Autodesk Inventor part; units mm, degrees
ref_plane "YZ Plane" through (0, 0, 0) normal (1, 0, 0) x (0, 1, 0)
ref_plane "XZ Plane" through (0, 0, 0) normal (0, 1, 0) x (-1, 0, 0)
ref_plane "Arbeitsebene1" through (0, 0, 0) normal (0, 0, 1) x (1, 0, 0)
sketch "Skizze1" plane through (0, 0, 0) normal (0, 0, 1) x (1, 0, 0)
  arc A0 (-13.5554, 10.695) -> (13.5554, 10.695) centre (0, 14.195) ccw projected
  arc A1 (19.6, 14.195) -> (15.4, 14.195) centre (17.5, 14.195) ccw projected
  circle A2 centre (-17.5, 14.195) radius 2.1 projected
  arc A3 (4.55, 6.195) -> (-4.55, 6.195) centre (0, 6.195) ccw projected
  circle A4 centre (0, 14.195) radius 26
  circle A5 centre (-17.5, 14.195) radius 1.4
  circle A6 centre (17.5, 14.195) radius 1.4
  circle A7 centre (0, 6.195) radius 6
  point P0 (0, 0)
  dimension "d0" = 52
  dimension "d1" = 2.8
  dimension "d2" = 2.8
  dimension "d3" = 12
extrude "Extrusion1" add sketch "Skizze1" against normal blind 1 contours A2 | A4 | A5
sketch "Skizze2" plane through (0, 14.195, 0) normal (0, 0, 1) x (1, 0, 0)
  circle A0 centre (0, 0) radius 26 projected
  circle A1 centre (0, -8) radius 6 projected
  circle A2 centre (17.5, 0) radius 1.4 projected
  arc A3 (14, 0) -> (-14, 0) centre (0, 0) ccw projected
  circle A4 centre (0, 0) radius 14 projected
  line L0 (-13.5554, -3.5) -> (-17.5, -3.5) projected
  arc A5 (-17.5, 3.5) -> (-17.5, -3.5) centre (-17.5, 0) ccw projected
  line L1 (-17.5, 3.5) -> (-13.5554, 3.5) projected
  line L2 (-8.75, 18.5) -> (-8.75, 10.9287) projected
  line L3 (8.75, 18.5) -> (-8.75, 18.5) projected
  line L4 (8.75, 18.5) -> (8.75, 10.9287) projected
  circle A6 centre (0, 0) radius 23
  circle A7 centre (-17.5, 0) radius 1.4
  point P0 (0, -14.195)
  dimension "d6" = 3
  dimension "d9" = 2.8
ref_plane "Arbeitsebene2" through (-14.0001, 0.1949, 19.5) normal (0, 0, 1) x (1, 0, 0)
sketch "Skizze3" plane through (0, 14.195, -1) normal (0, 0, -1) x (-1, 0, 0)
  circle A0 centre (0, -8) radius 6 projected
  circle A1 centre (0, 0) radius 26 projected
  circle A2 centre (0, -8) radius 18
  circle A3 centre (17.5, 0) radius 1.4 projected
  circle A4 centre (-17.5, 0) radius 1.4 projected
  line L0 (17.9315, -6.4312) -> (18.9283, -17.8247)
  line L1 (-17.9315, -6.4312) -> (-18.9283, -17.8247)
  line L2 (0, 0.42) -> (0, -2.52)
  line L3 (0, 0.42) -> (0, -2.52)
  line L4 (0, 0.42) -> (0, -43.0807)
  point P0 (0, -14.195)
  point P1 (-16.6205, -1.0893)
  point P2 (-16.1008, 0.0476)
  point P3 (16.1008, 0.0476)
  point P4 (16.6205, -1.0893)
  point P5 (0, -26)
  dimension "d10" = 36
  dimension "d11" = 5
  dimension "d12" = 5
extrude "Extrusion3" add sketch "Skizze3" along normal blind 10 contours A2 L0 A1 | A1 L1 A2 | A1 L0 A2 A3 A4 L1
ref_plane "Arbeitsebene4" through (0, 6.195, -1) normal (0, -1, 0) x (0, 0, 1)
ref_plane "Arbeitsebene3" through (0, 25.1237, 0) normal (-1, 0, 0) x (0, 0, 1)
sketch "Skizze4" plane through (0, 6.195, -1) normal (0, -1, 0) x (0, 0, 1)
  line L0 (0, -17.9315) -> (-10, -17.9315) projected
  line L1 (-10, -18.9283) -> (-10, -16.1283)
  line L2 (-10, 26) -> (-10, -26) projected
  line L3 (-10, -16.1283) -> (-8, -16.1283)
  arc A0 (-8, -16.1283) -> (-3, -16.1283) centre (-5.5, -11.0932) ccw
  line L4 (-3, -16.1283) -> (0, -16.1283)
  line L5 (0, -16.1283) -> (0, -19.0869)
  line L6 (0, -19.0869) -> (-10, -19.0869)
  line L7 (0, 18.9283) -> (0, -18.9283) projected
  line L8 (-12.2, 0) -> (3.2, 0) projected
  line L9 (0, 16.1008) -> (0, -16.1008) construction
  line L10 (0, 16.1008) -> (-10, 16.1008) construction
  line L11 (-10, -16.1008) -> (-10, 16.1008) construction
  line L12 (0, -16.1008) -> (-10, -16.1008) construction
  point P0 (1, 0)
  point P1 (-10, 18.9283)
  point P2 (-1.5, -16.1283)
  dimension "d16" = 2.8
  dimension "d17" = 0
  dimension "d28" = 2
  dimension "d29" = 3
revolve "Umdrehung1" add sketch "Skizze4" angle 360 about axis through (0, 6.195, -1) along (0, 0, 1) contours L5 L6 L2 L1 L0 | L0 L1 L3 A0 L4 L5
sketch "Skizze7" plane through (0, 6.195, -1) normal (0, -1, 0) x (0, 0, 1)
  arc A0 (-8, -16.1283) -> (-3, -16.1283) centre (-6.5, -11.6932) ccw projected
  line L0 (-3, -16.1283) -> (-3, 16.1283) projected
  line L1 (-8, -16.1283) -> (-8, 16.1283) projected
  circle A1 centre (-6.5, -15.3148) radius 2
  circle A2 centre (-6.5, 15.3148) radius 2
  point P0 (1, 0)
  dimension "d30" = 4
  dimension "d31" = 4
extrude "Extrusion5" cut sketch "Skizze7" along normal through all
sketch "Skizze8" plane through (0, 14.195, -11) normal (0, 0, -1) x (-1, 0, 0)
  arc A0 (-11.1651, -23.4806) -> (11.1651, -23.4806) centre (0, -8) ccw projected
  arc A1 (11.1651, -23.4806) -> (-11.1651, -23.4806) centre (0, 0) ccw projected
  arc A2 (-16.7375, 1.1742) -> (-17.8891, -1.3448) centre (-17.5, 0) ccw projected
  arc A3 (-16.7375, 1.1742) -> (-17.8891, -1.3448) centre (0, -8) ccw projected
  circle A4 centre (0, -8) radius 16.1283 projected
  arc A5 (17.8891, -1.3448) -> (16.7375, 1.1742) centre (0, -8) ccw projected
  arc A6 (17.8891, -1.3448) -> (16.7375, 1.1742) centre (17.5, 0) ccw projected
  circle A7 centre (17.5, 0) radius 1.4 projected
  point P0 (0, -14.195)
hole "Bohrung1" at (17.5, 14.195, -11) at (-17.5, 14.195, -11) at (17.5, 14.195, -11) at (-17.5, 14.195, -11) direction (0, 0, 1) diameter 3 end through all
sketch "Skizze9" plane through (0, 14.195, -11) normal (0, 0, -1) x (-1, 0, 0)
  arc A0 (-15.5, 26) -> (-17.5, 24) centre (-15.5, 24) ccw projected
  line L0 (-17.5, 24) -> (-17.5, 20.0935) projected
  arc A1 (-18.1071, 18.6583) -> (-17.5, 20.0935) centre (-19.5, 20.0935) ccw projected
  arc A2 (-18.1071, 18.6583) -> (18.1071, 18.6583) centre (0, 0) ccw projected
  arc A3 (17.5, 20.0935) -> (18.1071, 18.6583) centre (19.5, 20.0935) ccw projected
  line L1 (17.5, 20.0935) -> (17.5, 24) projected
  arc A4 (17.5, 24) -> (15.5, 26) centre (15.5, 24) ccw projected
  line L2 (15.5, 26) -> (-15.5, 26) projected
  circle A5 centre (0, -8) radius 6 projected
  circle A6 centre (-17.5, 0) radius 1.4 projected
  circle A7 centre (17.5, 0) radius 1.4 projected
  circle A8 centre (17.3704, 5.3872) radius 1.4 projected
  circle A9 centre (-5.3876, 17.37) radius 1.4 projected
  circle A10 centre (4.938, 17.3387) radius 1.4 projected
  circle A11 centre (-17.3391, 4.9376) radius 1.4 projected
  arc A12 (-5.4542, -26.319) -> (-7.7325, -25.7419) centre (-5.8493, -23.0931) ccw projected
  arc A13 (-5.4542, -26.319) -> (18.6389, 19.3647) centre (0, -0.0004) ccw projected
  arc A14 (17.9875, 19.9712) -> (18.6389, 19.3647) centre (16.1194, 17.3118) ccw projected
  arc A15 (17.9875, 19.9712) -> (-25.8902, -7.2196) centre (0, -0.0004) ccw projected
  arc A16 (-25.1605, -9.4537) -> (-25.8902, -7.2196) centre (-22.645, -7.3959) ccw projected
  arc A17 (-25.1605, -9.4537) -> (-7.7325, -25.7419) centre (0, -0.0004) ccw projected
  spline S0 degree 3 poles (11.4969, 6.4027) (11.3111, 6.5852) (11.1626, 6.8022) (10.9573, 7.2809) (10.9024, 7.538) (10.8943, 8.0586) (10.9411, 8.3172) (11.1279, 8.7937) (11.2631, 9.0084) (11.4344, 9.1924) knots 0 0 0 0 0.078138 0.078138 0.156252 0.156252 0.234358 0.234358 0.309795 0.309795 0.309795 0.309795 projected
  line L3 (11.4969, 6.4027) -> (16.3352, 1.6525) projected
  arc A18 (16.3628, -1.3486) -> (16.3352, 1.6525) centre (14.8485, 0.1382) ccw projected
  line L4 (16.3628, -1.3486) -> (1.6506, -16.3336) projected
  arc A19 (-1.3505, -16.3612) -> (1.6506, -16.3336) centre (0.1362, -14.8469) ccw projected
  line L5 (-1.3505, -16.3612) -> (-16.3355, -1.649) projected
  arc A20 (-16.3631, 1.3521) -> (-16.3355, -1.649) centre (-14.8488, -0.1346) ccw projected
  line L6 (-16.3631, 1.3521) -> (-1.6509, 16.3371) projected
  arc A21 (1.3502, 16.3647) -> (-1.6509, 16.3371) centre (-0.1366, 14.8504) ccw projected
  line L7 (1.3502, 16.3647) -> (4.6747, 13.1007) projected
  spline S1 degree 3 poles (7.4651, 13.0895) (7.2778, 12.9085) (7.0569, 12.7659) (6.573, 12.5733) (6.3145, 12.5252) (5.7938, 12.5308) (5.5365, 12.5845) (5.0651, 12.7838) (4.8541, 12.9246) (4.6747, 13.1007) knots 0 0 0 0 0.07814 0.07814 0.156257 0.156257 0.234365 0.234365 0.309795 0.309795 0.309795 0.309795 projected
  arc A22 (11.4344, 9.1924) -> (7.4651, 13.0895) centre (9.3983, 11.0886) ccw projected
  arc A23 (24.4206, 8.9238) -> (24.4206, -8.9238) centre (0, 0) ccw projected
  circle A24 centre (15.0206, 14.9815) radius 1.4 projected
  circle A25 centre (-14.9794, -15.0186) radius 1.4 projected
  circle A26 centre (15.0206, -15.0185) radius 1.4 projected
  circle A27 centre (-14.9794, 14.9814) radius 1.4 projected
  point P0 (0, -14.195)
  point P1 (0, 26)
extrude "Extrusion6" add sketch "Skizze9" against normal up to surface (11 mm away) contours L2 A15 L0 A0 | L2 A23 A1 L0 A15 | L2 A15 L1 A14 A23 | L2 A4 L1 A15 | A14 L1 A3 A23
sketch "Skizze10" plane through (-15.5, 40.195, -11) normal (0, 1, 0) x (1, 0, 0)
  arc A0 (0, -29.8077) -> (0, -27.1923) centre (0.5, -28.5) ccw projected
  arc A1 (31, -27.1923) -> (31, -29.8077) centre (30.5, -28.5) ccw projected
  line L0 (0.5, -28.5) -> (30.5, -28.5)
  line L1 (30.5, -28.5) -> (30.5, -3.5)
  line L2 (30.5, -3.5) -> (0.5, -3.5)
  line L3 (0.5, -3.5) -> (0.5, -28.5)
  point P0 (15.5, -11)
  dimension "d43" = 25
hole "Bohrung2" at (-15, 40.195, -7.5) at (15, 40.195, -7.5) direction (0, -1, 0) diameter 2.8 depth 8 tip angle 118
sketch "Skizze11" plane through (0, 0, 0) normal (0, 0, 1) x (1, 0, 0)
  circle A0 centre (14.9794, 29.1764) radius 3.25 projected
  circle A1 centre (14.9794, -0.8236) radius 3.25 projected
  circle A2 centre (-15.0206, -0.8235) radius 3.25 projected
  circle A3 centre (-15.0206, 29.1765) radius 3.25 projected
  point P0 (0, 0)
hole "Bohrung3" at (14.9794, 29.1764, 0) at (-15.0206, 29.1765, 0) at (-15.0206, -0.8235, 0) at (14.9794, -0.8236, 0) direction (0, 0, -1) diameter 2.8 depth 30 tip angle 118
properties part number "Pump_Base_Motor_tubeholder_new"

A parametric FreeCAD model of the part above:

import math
import FreeCAD as App
import Part
import Sketcher
from FreeCAD import Vector
Q = App.Units.Quantity

doc = App.newDocument("Part")
params = doc.addObject("Spreadsheet::Sheet", "Params")
for row, (alias, value) in enumerate([
    ("sketch1_diameter", "52 mm"),
    ("sketch1_diameter2", "12 mm"),
    ("sketch1_diameter3", "2.8 mm"),
    ("pad1_length", "1 mm"),
    ("sketch2_radius", "18 mm"),
    ("sketch2_diameter", "52 mm"),
    ("sketch2_radius2", "1.4 mm"),
    ("pad2_length", "10 mm"),
    ("sketch3_height", "3 mm"),
    ("sketch3_height2", "2 mm"),
    ("sketch3_height3", "10 mm"),
    ("revolution_angle", "360 deg"),
    ("sketch4_diameter", "4 mm"),
    ("sketch5_diameter", "3 mm"),
    ("hole_diameter", "3 mm"),
    ("sketch6_radius", "2 mm"),
    ("sketch6_radius2", "26 mm"),
    ("sketch6_width", "15.5 mm"),
    ("pad3_length", "11 mm"),
    ("sketch7_diameter", "2.8 mm"),
    ("hole2_diameter", "2.8 mm"),
    ("hole2_depth", "8 mm"),
    ("sketch8_diameter", "2.8 mm"),
    ("hole3_diameter", "2.8 mm"),
    ("hole3_depth", "30 mm"),
], start=1):
    params.set(f"A{row}", alias)
    params.set(f"B{row}", "=" + value)
    params.setAlias(f"B{row}", alias)

body = doc.addObject("PartDesign::Body", "Body")

# Sketch on XY plane
sketch1 = body.newObject("Sketcher::SketchObject", "Sketch")
sketch1.AttachmentSupport = (doc.getObject("XY_Plane"), [""])
sketch1.MapMode = "FlatFace"
sketch1.addGeometry(Part.Circle(Vector(0, 14.2, 0), Vector(0, 0, 1), 26), False)
sketch1.addGeometry(Part.Circle(Vector(0, 6.2, 0), Vector(0, 0, 1), 6), False)
sketch1.addGeometry(Part.Circle(Vector(17.5, 14.2, 0), Vector(0, 0, 1), 1.4), False)
sketch1.addConstraint(Sketcher.Constraint("PointOnObject", 0, 3, -2))
sketch1.addConstraint(Sketcher.Constraint("PointOnObject", 1, 3, -2))
sketch1.addConstraint(Sketcher.Constraint("Horizontal", 0, 3, 2, 3))
sketch1.addConstraint(Sketcher.Constraint("Diameter", 0, Q("52 mm")))
sketch1.addConstraint(Sketcher.Constraint("Diameter", 1, Q("12 mm")))
sketch1.addConstraint(Sketcher.Constraint("Diameter", 2, Q("2.8 mm")))
sketch1.addConstraint(Sketcher.Constraint("DistanceY", 1, 3, 0, 3, Q("8 mm")))
sketch1.addConstraint(Sketcher.Constraint("DistanceX", -1, 1, 2, 3, Q("17.5 mm")))
sketch1.addConstraint(Sketcher.Constraint("DistanceY", -1, 1, 0, 3, Q("14.195 mm")))
sketch1.setExpression("Constraints[3]", "Params.sketch1_diameter")
sketch1.setExpression("Constraints[4]", "Params.sketch1_diameter2")
sketch1.setExpression("Constraints[5]", "Params.sketch1_diameter3")
pad1 = body.newObject("PartDesign::Pad", "Pad")
pad1.Profile = sketch1
pad1.setExpression("Length", "Params.pad1_length")
pad1.Reversed = True

# Sketch on XY plane
sketch2 = body.newObject("Sketcher::SketchObject", "Sketch001")
sketch2.AttachmentSupport = (doc.getObject("XY_Plane"), [""])
sketch2.MapMode = "FlatFace"
sketch2.AttachmentOffset = App.Placement(Vector(0, 0, -1), App.Rotation())
sketch2.addGeometry(Part.Circle(Vector(0, 14.2, 0), Vector(0, 0, 1), 26), False)
sketch2.addGeometry(Part.ArcOfCircle(Part.Circle(Vector(0, 6.2, 0), Vector(0, 0, 1), 18), math.radians(-90), math.radians(23)), False)
sketch2.addGeometry(Part.ArcOfCircle(Part.Circle(Vector(17.5, 14.2, 0), Vector(0, 0, 1), 1.4), math.radians(-129), math.radians(178)), False)
sketch2.addGeometry(Part.ArcOfCircle(Part.Circle(Vector(0, 6.2, 0), Vector(0, 0, 1), 18), math.radians(27), math.radians(153)), False)
sketch2.addGeometry(Part.ArcOfCircle(Part.Circle(Vector(-17.5, 14.2, 0), Vector(0, 0, 1), 1.4), math.radians(2), math.radians(309)), False)
sketch2.addGeometry(Part.ArcOfCircle(Part.Circle(Vector(0, 6.2, 0), Vector(0, 0, 1), 18), math.radians(157), math.radians(270)), False)
sketch2.addConstraint(Sketcher.Constraint("Coincident", 1, 2, 2, 1))
sketch2.addConstraint(Sketcher.Constraint("Coincident", 2, 2, 3, 1))
sketch2.addConstraint(Sketcher.Constraint("Coincident", 3, 2, 4, 1))
sketch2.addConstraint(Sketcher.Constraint("Coincident", 4, 2, 5, 1))
sketch2.addConstraint(Sketcher.Constraint("Tangent", 5, 2, 1, 1))
sketch2.addConstraint(Sketcher.Constraint("Coincident", 3, 3, 1, 3))
sketch2.addConstraint(Sketcher.Constraint("Equal", 1, 3))
sketch2.addConstraint(Sketcher.Constraint("Equal", 2, 4))
sketch2.addConstraint(Sketcher.Constraint("Equal", 3, 5))
sketch2.addConstraint(Sketcher.Constraint("Symmetric", 2, 3, 4, 3, -2))
sketch2.addConstraint(Sketcher.Constraint("PointOnObject", 0, 3, -2))
sketch2.addConstraint(Sketcher.Constraint("PointOnObject", 1, 3, -2))
sketch2.addConstraint(Sketcher.Constraint("PointOnObject", 5, 2, -2))
sketch2.addConstraint(Sketcher.Constraint("Horizontal", 0, 3, 2, 3))
sketch2.addConstraint(Sketcher.Constraint("Radius", 1, Q("18 mm")))
sketch2.addConstraint(Sketcher.Constraint("Diameter", 0, Q("52 mm")))
sketch2.addConstraint(Sketcher.Constraint("Radius", 2, Q("1.4 mm")))
sketch2.addConstraint(Sketcher.Constraint("DistanceY", 1, 3, 0, 3, Q("8 mm")))
sketch2.addConstraint(Sketcher.Constraint("DistanceX", 4, 3, 2, 3, Q("35 mm")))
sketch2.addConstraint(Sketcher.Constraint("DistanceY", -1, 1, 0, 3, Q("14.195 mm")))
sketch2.setExpression("Constraints[14]", "Params.sketch2_radius")
sketch2.setExpression("Constraints[15]", "Params.sketch2_diameter")
sketch2.setExpression("Constraints[16]", "Params.sketch2_radius2")
pad2 = body.newObject("PartDesign::Pad", "Pad001")
pad2.Profile = sketch2
pad2.setExpression("Length", "Params.pad2_length")
pad2.Reversed = True

# Sketch on XZ plane
sketch3 = body.newObject("Sketcher::SketchObject", "Sketch002")
sketch3.AttachmentSupport = (doc.getObject("XZ_Plane"), [""])
sketch3.MapMode = "FlatFace"
sketch3.AttachmentOffset = App.Placement(Vector(0, 0, -6.195), App.Rotation())
sketch3.addGeometry(Part.LineSegment(Vector(16.1, -1, 0), Vector(16.1, -4, 0)), False)
sketch3.addGeometry(Part.ArcOfCircle(Part.Circle(Vector(11.1, -6.5, 0), Vector(0, 0, 1), 5.6), math.radians(-26), math.radians(26)), False)
sketch3.addGeometry(Part.LineSegment(Vector(16.1, -9, 0), Vector(16.1, -11, 0)), False)
sketch3.addGeometry(Part.LineSegment(Vector(16.1, -11, 0), Vector(19.1, -11, 0)), False)
sketch3.addGeometry(Part.LineSegment(Vector(19.1, -11, 0), Vector(19.1, -1, 0)), False)
sketch3.addGeometry(Part.LineSegment(Vector(19.1, -1, 0), Vector(16.1, -1, 0)), False)
sketch3.addConstraint(Sketcher.Constraint("Coincident", 0, 2, 1, 2))
sketch3.addConstraint(Sketcher.Constraint("Coincident", 1, 1, 2, 1))
sketch3.addConstraint(Sketcher.Constraint("Coincident", 2, 2, 3, 1))
sketch3.addConstraint(Sketcher.Constraint("Coincident", 3, 2, 4, 1))
sketch3.addConstraint(Sketcher.Constraint("Coincident", 4, 2, 5, 1))
sketch3.addConstraint(Sketcher.Constraint("Coincident", 5, 2, 0, 1))
sketch3.addConstraint(Sketcher.Constraint("Vertical", 0))
sketch3.addConstraint(Sketcher.Constraint("Vertical", 2))
sketch3.addConstraint(Sketcher.Constraint("Horizontal", 3))
sketch3.addConstraint(Sketcher.Constraint("Vertical", 4))
sketch3.addConstraint(Sketcher.Constraint("Horizontal", 5))
sketch3.addConstraint(Sketcher.Constraint("Vertical", 0, 2, 1, 1))
sketch3.addConstraint(Sketcher.Constraint("DistanceY", 0, 2, 0, 1, Q("3 mm")))
sketch3.addConstraint(Sketcher.Constraint("DistanceY", 2, 2, 2, 1, Q("2 mm")))
sketch3.addConstraint(Sketcher.Constraint("DistanceY", 4, 1, 4, 2, Q("10 mm")))
sketch3.addConstraint(Sketcher.Constraint("DistanceY", 0, 2, -1, 1, Q("4 mm")))
sketch3.addConstraint(Sketcher.Constraint("Radius", 1, Q("5.6216 mm")))
sketch3.addConstraint(Sketcher.Constraint("DistanceX", 3, 1, 3, 2, Q("2.9586 mm")))
sketch3.addConstraint(Sketcher.Constraint("DistanceX", -1, 1, 3, 2, Q("19.087 mm")))
sketch3.setExpression("Constraints[12]", "Params.sketch3_height")
sketch3.setExpression("Constraints[13]", "Params.sketch3_height2")
sketch3.setExpression("Constraints[14]", "Params.sketch3_height3")
revolution = body.newObject("PartDesign::Revolution", "Revolution")
revolution.Profile = sketch3
revolution.ReferenceAxis = (sketch3, ["V_Axis"])
revolution.setExpression("Angle", "Params.revolution_angle")

# Sketch on XZ plane
sketch4 = body.newObject("Sketcher::SketchObject", "Sketch003")
sketch4.AttachmentSupport = (doc.getObject("XZ_Plane"), [""])
sketch4.MapMode = "FlatFace"
sketch4.AttachmentOffset = App.Placement(Vector(0, 0, -6.195), App.Rotation())
sketch4.addGeometry(Part.Circle(Vector(15.3, -7.5, 0), Vector(0, 0, 1), 2), False)
sketch4.addGeometry(Part.Circle(Vector(-15.3, -7.5, 0), Vector(0, 0, 1), 2), False)
sketch4.addConstraint(Sketcher.Constraint("Equal", 0, 1))
sketch4.addConstraint(Sketcher.Constraint("Symmetric", 0, 3, 1, 3, -2))
sketch4.addConstraint(Sketcher.Constraint("Diameter", 0, Q("4 mm")))
sketch4.addConstraint(Sketcher.Constraint("DistanceY", 0, 3, -1, 1, Q("7.5 mm")))
sketch4.addConstraint(Sketcher.Constraint("DistanceX", -1, 1, 0, 3, Q("15.3148 mm")))
sketch4.setExpression("Constraints[2]", "Params.sketch4_diameter")
pocket1 = body.newObject("PartDesign::Pocket", "Pocket")
pocket1.Profile = sketch4
pocket1.Type = "ThroughAll"
pocket1.Reversed = True

# Sketch on XY plane
sketch5 = body.newObject("Sketcher::SketchObject", "Sketch004")
sketch5.AttachmentSupport = (doc.getObject("XY_Plane"), [""])
sketch5.MapMode = "FlatFace"
sketch5.AttachmentOffset = App.Placement(Vector(0, 0, -11), App.Rotation())
sketch5.addGeometry(Part.Circle(Vector(17.5, 14.2, 0), Vector(0, 0, 1), 1.5), False)
sketch5.addGeometry(Part.Circle(Vector(-17.5, 14.2, 0), Vector(0, 0, 1), 1.5), False)
sketch5.addGeometry(Part.Circle(Vector(17.5, 14.2, 0), Vector(0, 0, 1), 1.5), False)
sketch5.addGeometry(Part.Circle(Vector(-17.5, 14.2, 0), Vector(0, 0, 1), 1.5), False)
sketch5.addConstraint(Sketcher.Constraint("Coincident", 2, 3, 0, 3))
sketch5.addConstraint(Sketcher.Constraint("Coincident", 3, 3, 1, 3))
sketch5.addConstraint(Sketcher.Constraint("Equal", 0, 1))
sketch5.addConstraint(Sketcher.Constraint("Equal", 1, 2))
sketch5.addConstraint(Sketcher.Constraint("Equal", 2, 3))
sketch5.addConstraint(Sketcher.Constraint("Symmetric", 0, 3, 1, 3, -2))
sketch5.addConstraint(Sketcher.Constraint("Diameter", 0, Q("3 mm")))
sketch5.addConstraint(Sketcher.Constraint("DistanceX", 1, 3, 0, 3, Q("35 mm")))
sketch5.addConstraint(Sketcher.Constraint("DistanceY", -1, 1, 0, 3, Q("14.195 mm")))
sketch5.setExpression("Constraints[6]", "Params.sketch5_diameter")
doc.recompute()
hole = body.newObject("PartDesign::Hole", "Hole")
hole.Profile = sketch5
hole.ThreadType = "None"
hole.setExpression("Diameter", "Params.hole_diameter")
hole.DepthType = "ThroughAll"
hole.Reversed = True

# Sketch on XY plane
sketch6 = body.newObject("Sketcher::SketchObject", "Sketch005")
sketch6.AttachmentSupport = (doc.getObject("XY_Plane"), [""])
sketch6.MapMode = "FlatFace"
sketch6.AttachmentOffset = App.Placement(Vector(0, 0, -11), App.Rotation())
sketch6.addGeometry(Part.ArcOfCircle(Part.Circle(Vector(15.5, 38.2, 0), Vector(0, 0, 1), 2), math.radians(0), math.radians(90)), False)
sketch6.addGeometry(Part.LineSegment(Vector(17.5, 38.2, 0), Vector(17.5, 34.3, 0)), False)
sketch6.addGeometry(Part.ArcOfCircle(Part.Circle(Vector(19.5, 34.3, 0), Vector(0, 0, 1), 2), math.radians(180), math.radians(226)), False)
sketch6.addGeometry(Part.ArcOfCircle(Part.Circle(Vector(0, 14.2, 0), Vector(0, 0, 1), 26), math.radians(46), math.radians(90)), False)
sketch6.addGeometry(Part.LineSegment(Vector(0, 40.2, 0), Vector(15.5, 40.2, 0)), False)
sketch6.addGeometry(Part.ArcOfCircle(Part.Circle(Vector(0, 14.2, 0), Vector(0, 0, 1), 26), math.radians(90), math.radians(134)), False)
sketch6.addGeometry(Part.ArcOfCircle(Part.Circle(Vector(-19.5, 34.3, 0), Vector(0, 0, 1), 2), math.radians(-46), math.radians(0)), False)
sketch6.addGeometry(Part.LineSegment(Vector(-17.5, 34.3, 0), Vector(-17.5, 38.2, 0)), False)
sketch6.addGeometry(Part.ArcOfCircle(Part.Circle(Vector(-15.5, 38.2, 0), Vector(0, 0, 1), 2), math.radians(90), math.radians(180)), False)
sketch6.addGeometry(Part.LineSegment(Vector(-15.5, 40.2, 0), Vector(0, 40.2, 0)), False)
sketch6.addConstraint(Sketcher.Constraint("Tangent", 0, 1, 1, 1))
sketch6.addConstraint(Sketcher.Constraint("Tangent", 1, 2, 2, 1))
sketch6.addConstraint(Sketcher.Constraint("Tangent", 2, 2, 3, 1))
sketch6.addConstraint(Sketcher.Constraint("Tangent", 3, 2, 4, 1))
sketch6.addConstraint(Sketcher.Constraint("Tangent", 4, 2, 0, 2))
sketch6.addConstraint(Sketcher.Constraint("Tangent", 5, 2, 6, 1))
sketch6.addConstraint(Sketcher.Constraint("Tangent", 6, 2, 7, 1))
sketch6.addConstraint(Sketcher.Constraint("Tangent", 7, 2, 8, 2))
sketch6.addConstraint(Sketcher.Constraint("Tangent", 8, 1, 9, 1))
sketch6.addConstraint(Sketcher.Constraint("Tangent", 9, 2, 5, 1))
sketch6.addConstraint(Sketcher.Constraint("Vertical", 1))
sketch6.addConstraint(Sketcher.Constraint("Horizontal", 4))
sketch6.addConstraint(Sketcher.Constraint("Vertical", 7))
sketch6.addConstraint(Sketcher.Constraint("Horizontal", 9))
sketch6.addConstraint(Sketcher.Constraint("Coincident", 5, 3, 3, 3))
sketch6.addConstraint(Sketcher.Constraint("Equal", 0, 2))
sketch6.addConstraint(Sketcher.Constraint("Equal", 3, 5))
sketch6.addConstraint(Sketcher.Constraint("Equal", 2, 6))
sketch6.addConstraint(Sketcher.Constraint("Equal", 6, 8))
sketch6.addConstraint(Sketcher.Constraint("Symmetric", 2, 3, 6, 3, -2))
sketch6.addConstraint(Sketcher.Constraint("Radius", 0, Q("2 mm")))
sketch6.addConstraint(Sketcher.Constraint("Radius", 3, Q("26 mm")))
sketch6.addConstraint(Sketcher.Constraint("DistanceX", 4, 1, 4, 2, Q("15.5 mm")))
sketch6.addConstraint(Sketcher.Constraint("DistanceY", -1, 1, 0, 3, Q("38.195 mm")))
sketch6.setExpression("Constraints[20]", "Params.sketch6_radius")
sketch6.setExpression("Constraints[21]", "Params.sketch6_radius2")
sketch6.setExpression("Constraints[22]", "Params.sketch6_width")
pad3 = body.newObject("PartDesign::Pad", "Pad002")
pad3.Profile = sketch6
pad3.setExpression("Length", "Params.pad3_length")

# Sketch on XZ plane
sketch7 = body.newObject("Sketcher::SketchObject", "Sketch006")
sketch7.AttachmentSupport = (doc.getObject("XZ_Plane"), [""])
sketch7.MapMode = "FlatFace"
sketch7.AttachmentOffset = App.Placement(Vector(0, 0, -40.195), App.Rotation())
sketch7.addGeometry(Part.Circle(Vector(-15, -7.5, 0), Vector(0, 0, 1), 1.4), False)
sketch7.addGeometry(Part.Circle(Vector(15, -7.5, 0), Vector(0, 0, 1), 1.4), False)
sketch7.addConstraint(Sketcher.Constraint("Equal", 0, 1))
sketch7.addConstraint(Sketcher.Constraint("Symmetric", 0, 3, 1, 3, -2))
sketch7.addConstraint(Sketcher.Constraint("Diameter", 0, Q("2.8 mm")))
sketch7.addConstraint(Sketcher.Constraint("DistanceX", 0, 3, -1, 1, Q("15 mm")))
sketch7.addConstraint(Sketcher.Constraint("DistanceY", 0, 3, -1, 1, Q("7.5 mm")))
sketch7.setExpression("Constraints[2]", "Params.sketch7_diameter")
doc.recompute()
hole2 = body.newObject("PartDesign::Hole", "Hole001")
hole2.Profile = sketch7
hole2.ThreadType = "None"
hole2.setExpression("Diameter", "Params.hole2_diameter")
hole2.DepthType = "Dimension"
hole2.setExpression("Depth", "Params.hole2_depth")
hole2.DrillPoint = "Angled"
hole2.DrillPointAngle = 118
hole2.Reversed = True

# Sketch on XY plane
sketch8 = body.newObject("Sketcher::SketchObject", "Sketch007")
sketch8.AttachmentSupport = (doc.getObject("XY_Plane"), [""])
sketch8.MapMode = "FlatFace"
sketch8.addGeometry(Part.Circle(Vector(15, 29.2, 0), Vector(0, 0, 1), 1.4), False)
sketch8.addGeometry(Part.Circle(Vector(-15, 29.2, 0), Vector(0, 0, 1), 1.4), False)
sketch8.addGeometry(Part.Circle(Vector(-15, -0.8, 0), Vector(0, 0, 1), 1.4), False)
sketch8.addGeometry(Part.Circle(Vector(15, -0.8, 0), Vector(0, 0, 1), 1.4), False)
sketch8.addConstraint(Sketcher.Constraint("Equal", 0, 1))
sketch8.addConstraint(Sketcher.Constraint("Equal", 1, 2))
sketch8.addConstraint(Sketcher.Constraint("Equal", 2, 3))
sketch8.addConstraint(Sketcher.Constraint("Horizontal", 0, 3, 1, 3))
sketch8.addConstraint(Sketcher.Constraint("Horizontal", 2, 3, 3, 3))
sketch8.addConstraint(Sketcher.Constraint("Vertical", 1, 3, 2, 3))
sketch8.addConstraint(Sketcher.Constraint("Vertical", 0, 3, 3, 3))
sketch8.addConstraint(Sketcher.Constraint("Diameter", 0, Q("2.8 mm")))
sketch8.addConstraint(Sketcher.Constraint("DistanceX", 1, 3, 0, 3, Q("30 mm")))
sketch8.addConstraint(Sketcher.Constraint("DistanceY", 2, 3, 1, 3, Q("30 mm")))
sketch8.addConstraint(Sketcher.Constraint("DistanceX", -1, 1, 0, 3, Q("14.9794 mm")))
sketch8.addConstraint(Sketcher.Constraint("DistanceY", -1, 1, 0, 3, Q("29.1764 mm")))
sketch8.setExpression("Constraints[7]", "Params.sketch8_diameter")
doc.recompute()
hole3 = body.newObject("PartDesign::Hole", "Hole002")
hole3.Profile = sketch8
hole3.ThreadType = "None"
hole3.setExpression("Diameter", "Params.hole3_diameter")
hole3.DepthType = "Dimension"
hole3.setExpression("Depth", "Params.hole3_depth")
hole3.DrillPoint = "Angled"
hole3.DrillPointAngle = 118

doc.recompute()
